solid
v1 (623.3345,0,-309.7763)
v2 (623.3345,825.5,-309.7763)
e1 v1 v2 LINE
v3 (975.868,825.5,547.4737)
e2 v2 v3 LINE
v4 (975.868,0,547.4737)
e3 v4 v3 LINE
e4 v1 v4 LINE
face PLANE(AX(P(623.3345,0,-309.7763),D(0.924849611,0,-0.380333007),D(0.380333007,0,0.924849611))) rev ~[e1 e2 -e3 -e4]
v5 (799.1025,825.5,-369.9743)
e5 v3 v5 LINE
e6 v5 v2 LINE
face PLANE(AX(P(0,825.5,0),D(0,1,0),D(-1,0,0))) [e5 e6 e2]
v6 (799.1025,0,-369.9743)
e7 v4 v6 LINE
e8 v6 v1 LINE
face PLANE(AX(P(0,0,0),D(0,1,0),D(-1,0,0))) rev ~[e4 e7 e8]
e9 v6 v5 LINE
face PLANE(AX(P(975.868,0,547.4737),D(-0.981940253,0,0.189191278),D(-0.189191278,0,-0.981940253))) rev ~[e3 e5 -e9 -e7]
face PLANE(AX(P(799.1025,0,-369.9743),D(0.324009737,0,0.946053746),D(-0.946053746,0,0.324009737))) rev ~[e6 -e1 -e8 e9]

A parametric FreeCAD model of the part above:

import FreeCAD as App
import Part
import Sketcher

V = App.Vector
Q = App.Units.Quantity

doc = App.newDocument("Part")
params = doc.addObject("Spreadsheet::Sheet", "Params")
for row, (alias, value) in enumerate([
    ("pad1_length", "32.5 in"),
], start=1):
    params.set(f"A{row}", alias)
    params.set(f"B{row}", "=" + value)
    params.setAlias(f"B{row}", alias)

body = doc.addObject("PartDesign::Body", "Body")

# Sketch on XZ plane
sketch1 = body.newObject("Sketcher::SketchObject", "Sketch")
sketch1.AttachmentSupport = (doc.getObject("XZ_Plane"), [""])
sketch1.MapMode = "FlatFace"
sketch1.addGeometry(Part.LineSegment(V(623, -310, 0), V(976, 547, 0)), False)
sketch1.addGeometry(Part.LineSegment(V(976, 547, 0), V(799, -370, 0)), False)
sketch1.addGeometry(Part.LineSegment(V(799, -370, 0), V(623, -310, 0)), False)
sketch1.addConstraint(Sketcher.Constraint("Coincident", 0, 2, 1, 1))
sketch1.addConstraint(Sketcher.Constraint("Coincident", 1, 2, 2, 1))
sketch1.addConstraint(Sketcher.Constraint("Coincident", 2, 2, 0, 1))
sketch1.addConstraint(Sketcher.Constraint("DistanceY", 1, 2, 0, 2, Q("36.12 in")))
sketch1.addConstraint(Sketcher.Constraint("DistanceX", 2, 2, 1, 2, Q("6.92 in")))
sketch1.addConstraint(Sketcher.Constraint("DistanceY", 2, 2, 0, 2, Q("33.75 in")))
sketch1.addConstraint(Sketcher.Constraint("DistanceX", -1, 1, 0, 2, Q("38.42 in")))
sketch1.addConstraint(Sketcher.Constraint("Distance", 0, Q("926.9075 mm")))
sketch1.addConstraint(Sketcher.Constraint("DistanceY", -1, 1, 0, 2, Q("547.4737 mm")))
pad1 = body.newObject("PartDesign::Pad", "Pad")
pad1.Profile = sketch1
pad1.setExpression("Length", "Params.pad1_length")
pad1.Reversed = True

doc.recompute()
